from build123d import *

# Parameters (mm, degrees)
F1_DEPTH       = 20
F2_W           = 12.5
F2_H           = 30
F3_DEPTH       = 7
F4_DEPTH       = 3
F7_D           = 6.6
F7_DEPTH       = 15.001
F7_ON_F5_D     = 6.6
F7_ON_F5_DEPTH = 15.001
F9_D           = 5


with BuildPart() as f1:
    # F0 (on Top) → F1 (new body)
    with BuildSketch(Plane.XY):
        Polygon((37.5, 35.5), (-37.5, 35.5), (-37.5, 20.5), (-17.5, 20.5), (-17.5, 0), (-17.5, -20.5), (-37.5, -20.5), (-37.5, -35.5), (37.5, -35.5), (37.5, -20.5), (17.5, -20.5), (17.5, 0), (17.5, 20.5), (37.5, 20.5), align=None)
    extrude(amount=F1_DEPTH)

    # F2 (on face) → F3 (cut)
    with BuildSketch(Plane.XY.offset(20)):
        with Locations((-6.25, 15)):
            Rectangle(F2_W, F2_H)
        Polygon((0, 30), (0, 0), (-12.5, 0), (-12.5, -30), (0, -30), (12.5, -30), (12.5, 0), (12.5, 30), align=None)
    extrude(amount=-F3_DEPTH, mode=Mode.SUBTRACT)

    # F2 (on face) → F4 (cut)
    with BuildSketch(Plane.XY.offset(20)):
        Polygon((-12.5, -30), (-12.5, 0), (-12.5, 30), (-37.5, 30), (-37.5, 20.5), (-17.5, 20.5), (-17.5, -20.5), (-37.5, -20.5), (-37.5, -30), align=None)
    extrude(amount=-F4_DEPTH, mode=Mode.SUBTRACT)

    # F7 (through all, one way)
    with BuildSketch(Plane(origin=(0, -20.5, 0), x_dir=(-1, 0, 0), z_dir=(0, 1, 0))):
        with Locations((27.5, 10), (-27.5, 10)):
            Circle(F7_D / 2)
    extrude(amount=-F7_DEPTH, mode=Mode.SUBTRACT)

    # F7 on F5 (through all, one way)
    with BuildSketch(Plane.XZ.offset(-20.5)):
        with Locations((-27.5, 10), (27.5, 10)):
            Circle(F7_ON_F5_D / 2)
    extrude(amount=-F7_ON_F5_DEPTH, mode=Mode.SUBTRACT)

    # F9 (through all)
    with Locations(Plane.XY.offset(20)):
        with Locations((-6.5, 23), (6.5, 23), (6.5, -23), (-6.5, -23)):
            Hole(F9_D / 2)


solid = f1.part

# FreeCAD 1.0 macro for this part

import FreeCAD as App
import Part
import Sketcher

V = App.Vector
Q = App.Units.Quantity


def add_polygon(sketch, points):
    """Adds a closed chain of lines whose ends are joined by coincident constraints."""
    first, n = sketch.GeometryCount, len(points)
    for a, b in zip(points, points[1:] + points[:1]):
        sketch.addGeometry(Part.LineSegment(App.Vector(*a, 0), App.Vector(*b, 0)), False)
    for i in range(n):
        sketch.addConstraint(Sketcher.Constraint("Coincident", first + i, 2, first + (i + 1) % n, 1))

doc = App.newDocument("Part")
params = doc.addObject("Spreadsheet::Sheet", "Params")
for row, (alias, value) in enumerate([
    ("sketch1_width", "75 mm"),
    ("sketch1_width2", "20 mm"),
    ("sketch1_height", "15 mm"),
    ("sketch1_height2", "41 mm"),
    ("pad1_length", "20 mm"),
    ("sketch2_width", "25 mm"),
    ("sketch2_height", "60 mm"),
    ("pocket1_length", "7 mm"),
    ("sketch3_width", "25 mm"),
    ("sketch3_width2", "20 mm"),
    ("sketch3_height", "60 mm"),
    ("sketch3_height2", "41 mm"),
    ("pocket2_length", "3 mm"),
    ("sketch4_diameter", "6.6 mm"),
    ("sketch5_diameter", "6.6 mm"),
    ("sketch6_diameter", "5 mm"),
    ("hole_diameter", "5 mm"),
], start=1):
    params.set(f"A{row}", alias)
    params.set(f"B{row}", "=" + value)
    params.setAlias(f"B{row}", alias)

body = doc.addObject("PartDesign::Body", "Body")

# Sketch on XY plane
sketch1 = body.newObject("Sketcher::SketchObject", "Sketch")
sketch1.AttachmentSupport = (doc.getObject("XY_Plane"), [""])
sketch1.MapMode = "FlatFace"
add_polygon(sketch1, [(37.5, 35.5), (-37.5, 35.5), (-37.5, 20.5), (-17.5, 20.5), (-17.5, -20.5), (-37.5, -20.5), (-37.5, -35.5), (37.5, -35.5), (37.5, -20.5), (17.5, -20.5), (17.5, 20.5), (37.5, 20.5)])  # lines 0-11
sketch1.addConstraint([
    Sketcher.Constraint("Horizontal", 0),
    Sketcher.Constraint("Vertical", 1),
    Sketcher.Constraint("Horizontal", 2),
    Sketcher.Constraint("Vertical", 3),
    Sketcher.Constraint("Horizontal", 4),
    Sketcher.Constraint("Vertical", 5),
    Sketcher.Constraint("Horizontal", 6),
    Sketcher.Constraint("Vertical", 7),
    Sketcher.Constraint("Horizontal", 8),
    Sketcher.Constraint("Vertical", 9),
    Sketcher.Constraint("Horizontal", 10),
    Sketcher.Constraint("Vertical", 11),
    Sketcher.Constraint("Symmetric", 0, 2, 6, 2, -1, 1),
    Sketcher.Constraint("Symmetric", 2, 2, 8, 2, -1, 1),
    Sketcher.Constraint("Symmetric", 4, 2, 10, 2, -1, 1),
    Sketcher.Constraint("Symmetric", 4, 2, 7, 2, -2),
    Sketcher.Constraint("DistanceX", 0, 2, 0, 1, Q("75 mm")),
    Sketcher.Constraint("DistanceX", 2, 1, 2, 2, Q("20 mm")),
    Sketcher.Constraint("DistanceY", 1, 2, 1, 1, Q("15 mm")),
    Sketcher.Constraint("DistanceY", 3, 2, 3, 1, Q("41 mm")),
])
sketch1.setExpression("Constraints[28]", "Params.sketch1_width")
sketch1.setExpression("Constraints[29]", "Params.sketch1_width2")
sketch1.setExpression("Constraints[30]", "Params.sketch1_height")
sketch1.setExpression("Constraints[31]", "Params.sketch1_height2")
pad1 = body.newObject("PartDesign::Pad", "Pad")
pad1.Profile = sketch1
pad1.setExpression("Length", "Params.pad1_length")

# Sketch on XY plane
sketch2 = body.newObject("Sketcher::SketchObject", "Sketch001")
sketch2.AttachmentSupport = (doc.getObject("XY_Plane"), [""])
sketch2.MapMode = "FlatFace"
sketch2.AttachmentOffset = App.Placement(V(0, 0, 20), App.Rotation())
add_polygon(sketch2, [(-12.5, 30), (-12.5, -30), (12.5, -30), (12.5, 30)])  # lines 0-3
sketch2.addConstraint([
    Sketcher.Constraint("Vertical", 0),
    Sketcher.Constraint("Horizontal", 1),
    Sketcher.Constraint("Vertical", 2),
    Sketcher.Constraint("Horizontal", 3),
    Sketcher.Constraint("Symmetric", 0, 2, 2, 2, -1, 1),
    Sketcher.Constraint("DistanceX", 1, 1, 1, 2, Q("25 mm")),
    Sketcher.Constraint("DistanceY", 0, 2, 0, 1, Q("60 mm")),
])
sketch2.setExpression("Constraints[9]", "Params.sketch2_width")
sketch2.setExpression("Constraints[10]", "Params.sketch2_height")
pocket1 = body.newObject("PartDesign::Pocket", "Pocket")
pocket1.Profile = sketch2
pocket1.setExpression("Length", "Params.pocket1_length")

# Sketch on XY plane
sketch3 = body.newObject("Sketcher::SketchObject", "Sketch002")
sketch3.AttachmentSupport = (doc.getObject("XY_Plane"), [""])
sketch3.MapMode = "FlatFace"
sketch3.AttachmentOffset = App.Placement(V(0, 0, 20), App.Rotation())
add_polygon(sketch3, [(-12.5, -30), (-12.5, 30), (-37.5, 30), (-37.5, 20.5), (-17.5, 20.5), (-17.5, -20.5), (-37.5, -20.5), (-37.5, -30)])  # lines 0-7
sketch3.addConstraint([
    Sketcher.Constraint("Vertical", 0),
    Sketcher.Constraint("Horizontal", 1),
    Sketcher.Constraint("Vertical", 2),
    Sketcher.Constraint("Horizontal", 3),
    Sketcher.Constraint("Vertical", 4),
    Sketcher.Constraint("Horizontal", 5),
    Sketcher.Constraint("Vertical", 6),
    Sketcher.Constraint("Horizontal", 7),
    Sketcher.Constraint("Symmetric", 2, 2, 5, 2, -1),
    Sketcher.Constraint("Equal", 2, 6),
    Sketcher.Constraint("DistanceX", 1, 2, 1, 1, Q("25 mm")),
    Sketcher.Constraint("DistanceX", 3, 1, 3, 2, Q("20 mm")),
    Sketcher.Constraint("DistanceY", 0, 1, 0, 2, Q("60 mm")),
    Sketcher.Constraint("DistanceY", 4, 2, 4, 1, Q("41 mm")),
    Sketcher.Constraint("DistanceX", 0, 2, -1, 1, Q("12.5 mm")),
])
sketch3.setExpression("Constraints[18]", "Params.sketch3_width")
sketch3.setExpression("Constraints[19]", "Params.sketch3_width2")
sketch3.setExpression("Constraints[20]", "Params.sketch3_height")
sketch3.setExpression("Constraints[21]", "Params.sketch3_height2")
pocket2 = body.newObject("PartDesign::Pocket", "Pocket001")
pocket2.Profile = sketch3
pocket2.setExpression("Length", "Params.pocket2_length")

# Sketch on XZ plane
sketch4 = body.newObject("Sketcher::SketchObject", "Sketch003")
sketch4.AttachmentSupport = (doc.getObject("XZ_Plane"), [""])
sketch4.MapMode = "FlatFace"
sketch4.AttachmentOffset = App.Placement(V(0, 0, 20.5), App.Rotation())
sketch4.addGeometry([
    Part.Circle(V(27.5, 10, 0), V(0, 0, 1), 3.3),
    Part.Circle(V(-27.5, 10, 0), V(0, 0, 1), 3.3),
], False)
sketch4.addConstraint([
    Sketcher.Constraint("Equal", 0, 1),
    Sketcher.Constraint("Symmetric", 0, 3, 1, 3, -2),
    Sketcher.Constraint("Diameter", 0, Q("6.6 mm")),
    Sketcher.Constraint("DistanceY", -1, 1, 0, 3, Q("10 mm")),
    Sketcher.Constraint("DistanceX", 1, 3, 0, 3, Q("55 mm")),
])
sketch4.setExpression("Constraints[2]", "Params.sketch4_diameter")
pocket3 = body.newObject("PartDesign::Pocket", "Pocket002")
pocket3.Profile = sketch4
pocket3.Type = "ThroughAll"
pocket3.Reversed = True

# Sketch on XZ plane
sketch5 = body.newObject("Sketcher::SketchObject", "Sketch004")
sketch5.AttachmentSupport = (doc.getObject("XZ_Plane"), [""])
sketch5.MapMode = "FlatFace"
sketch5.AttachmentOffset = App.Placement(V(0, 0, -20.5), App.Rotation())
sketch5.addGeometry([
    Part.Circle(V(27.5, 10, 0), V(0, 0, 1), 3.3),
    Part.Circle(V(-27.5, 10, 0), V(0, 0, 1), 3.3),
], False)
sketch5.addConstraint([
    Sketcher.Constraint("Equal", 0, 1),
    Sketcher.Constraint("Symmetric", 0, 3, 1, 3, -2),
    Sketcher.Constraint("Diameter", 0, Q("6.6 mm")),
    Sketcher.Constraint("DistanceY", -1, 1, 0, 3, Q("10 mm")),
    Sketcher.Constraint("DistanceX", 1, 3, 0, 3, Q("55 mm")),
])
sketch5.setExpression("Constraints[2]", "Params.sketch5_diameter")
pocket4 = body.newObject("PartDesign::Pocket", "Pocket003")
pocket4.Profile = sketch5
pocket4.Type = "ThroughAll"

# Sketch on XY plane
sketch6 = body.newObject("Sketcher::SketchObject", "Sketch005")
sketch6.AttachmentSupport = (doc.getObject("XY_Plane"), [""])
sketch6.MapMode = "FlatFace"
sketch6.AttachmentOffset = App.Placement(V(0, 0, 20), App.Rotation())
sketch6.addGeometry([
    Part.Circle(V(-6.5, 23, 0), V(0, 0, 1), 2.5),
    Part.Circle(V(6.5, 23, 0), V(0, 0, 1), 2.5),
    Part.Circle(V(6.5, -23, 0), V(0, 0, 1), 2.5),
    Part.Circle(V(-6.5, -23, 0), V(0, 0, 1), 2.5),
], False)
sketch6.addConstraint([
    Sketcher.Constraint("Equal", 0, 1),
    Sketcher.Constraint("Equal", 1, 2),
    Sketcher.Constraint("Equal", 2, 3),
    Sketcher.Constraint("Symmetric", 0, 3, 2, 3, -1, 1),
    Sketcher.Constraint("Symmetric", 1, 3, 3, 3, -1, 1),
    Sketcher.Constraint("Symmetric", 0, 3, 1, 3, -2),
    Sketcher.Constraint("Diameter", 0, Q("5 mm")),
    Sketcher.Constraint("DistanceY", -1, 1, 0, 3, Q("23 mm")),
    Sketcher.Constraint("DistanceX", 0, 3, 1, 3, Q("13 mm")),
])
sketch6.setExpression("Constraints[6]", "Params.sketch6_diameter")
doc.recompute()
hole = body.newObject("PartDesign::Hole", "Hole")
hole.Profile = sketch6
hole.ThreadType = "None"
hole.setExpression("Diameter", "Params.hole_diameter")
hole.DepthType = "ThroughAll"

doc.recompute()
